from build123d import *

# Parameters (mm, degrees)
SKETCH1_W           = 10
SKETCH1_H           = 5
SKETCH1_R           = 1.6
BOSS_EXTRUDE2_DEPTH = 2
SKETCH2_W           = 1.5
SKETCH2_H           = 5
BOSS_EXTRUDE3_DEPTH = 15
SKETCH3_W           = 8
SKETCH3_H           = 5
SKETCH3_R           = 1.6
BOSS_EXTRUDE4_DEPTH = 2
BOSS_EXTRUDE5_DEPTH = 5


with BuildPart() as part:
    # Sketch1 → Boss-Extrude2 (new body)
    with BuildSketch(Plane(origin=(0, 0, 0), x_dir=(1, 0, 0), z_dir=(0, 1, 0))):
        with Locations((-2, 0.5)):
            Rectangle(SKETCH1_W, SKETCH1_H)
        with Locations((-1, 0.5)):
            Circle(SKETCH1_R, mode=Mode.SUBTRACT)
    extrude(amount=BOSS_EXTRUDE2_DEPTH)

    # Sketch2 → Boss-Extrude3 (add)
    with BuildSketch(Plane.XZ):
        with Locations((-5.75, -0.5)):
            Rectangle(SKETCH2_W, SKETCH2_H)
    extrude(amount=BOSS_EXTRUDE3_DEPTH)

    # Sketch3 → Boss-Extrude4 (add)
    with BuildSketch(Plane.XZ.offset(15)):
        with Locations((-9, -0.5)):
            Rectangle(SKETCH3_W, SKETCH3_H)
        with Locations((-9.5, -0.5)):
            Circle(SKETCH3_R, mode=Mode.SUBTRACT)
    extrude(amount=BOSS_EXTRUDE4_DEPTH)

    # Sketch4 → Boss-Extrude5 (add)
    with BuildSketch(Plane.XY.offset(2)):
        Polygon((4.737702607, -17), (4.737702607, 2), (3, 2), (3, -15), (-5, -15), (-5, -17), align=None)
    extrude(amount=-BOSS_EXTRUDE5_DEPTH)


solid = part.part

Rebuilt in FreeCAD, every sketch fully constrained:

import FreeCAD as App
import Part
import Sketcher

doc = App.newDocument("Part")
body = doc.addObject("PartDesign::Body", "Body")

sketch1 = doc.addObject("Sketcher::SketchObject", "Sketch")
body.addObject(sketch1)
sketch1.AttachmentSupport = (doc.XZ_Plane, [""])
sketch1.MapMode = "FlatFace"
sketch1.addGeometry([
    Part.LineSegment(App.Vector(-7, -3, 0), App.Vector(-7, 2, 0)),
    Part.LineSegment(App.Vector(-7, 2, 0), App.Vector(3, 2, 0)),
    Part.LineSegment(App.Vector(3, 2, 0), App.Vector(3, -3, 0)),
    Part.LineSegment(App.Vector(3, -3, 0), App.Vector(-7, -3, 0)),
    Part.Circle(App.Vector(-1, -0.5, 0), App.Vector(0, 0, 1), 1.6),
], False)
sketch1.addConstraint([
    Sketcher.Constraint("Coincident", 0, 2, 1, 1),
    Sketcher.Constraint("Coincident", 1, 2, 2, 1),
    Sketcher.Constraint("Coincident", 2, 2, 3, 1),
    Sketcher.Constraint("Coincident", 3, 2, 0, 1),
    Sketcher.Constraint("Vertical", 0),
    Sketcher.Constraint("Horizontal", 1),
    Sketcher.Constraint("Vertical", 2),
    Sketcher.Constraint("Horizontal", 3),
    Sketcher.Constraint("Diameter", 4, 3.2),
    Sketcher.Constraint("DistanceX", 1, 1, 1, 2, 10.0),
    Sketcher.Constraint("DistanceY", 0, 1, 0, 2, 5.0),
    Sketcher.Constraint("DistanceX", 4, 3, -1, 1, 1.0),
    Sketcher.Constraint("DistanceX", 0, 2, -1, 1, 7.0),
    Sketcher.Constraint("DistanceY", -1, 1, 0, 2, 2.0),
    Sketcher.Constraint("DistanceY", 4, 3, -1, 1, 0.5),
])
pad1 = doc.addObject("PartDesign::Pad", "Pad")
body.addObject(pad1)
pad1.Profile = sketch1
pad1.Length = 2
pad1.Reversed = True

sketch2 = doc.addObject("Sketcher::SketchObject", "Sketch001")
body.addObject(sketch2)
sketch2.AttachmentSupport = (doc.XZ_Plane, [""])
sketch2.MapMode = "FlatFace"
sketch2.addGeometry([
    Part.LineSegment(App.Vector(-6.5, 2, 0), App.Vector(-6.5, -3, 0)),
    Part.LineSegment(App.Vector(-6.5, -3, 0), App.Vector(-5, -3, 0)),
    Part.LineSegment(App.Vector(-5, -3, 0), App.Vector(-5, 2, 0)),
    Part.LineSegment(App.Vector(-5, 2, 0), App.Vector(-6.5, 2, 0)),
], False)
sketch2.addConstraint([
    Sketcher.Constraint("Coincident", 0, 2, 1, 1),
    Sketcher.Constraint("Coincident", 1, 2, 2, 1),
    Sketcher.Constraint("Coincident", 2, 2, 3, 1),
    Sketcher.Constraint("Coincident", 3, 2, 0, 1),
    Sketcher.Constraint("Vertical", 0),
    Sketcher.Constraint("Horizontal", 1),
    Sketcher.Constraint("Vertical", 2),
    Sketcher.Constraint("Horizontal", 3),
    Sketcher.Constraint("DistanceY", 0, 2, 0, 1, 5.0),
    Sketcher.Constraint("DistanceX", 1, 1, 1, 2, 1.5),
    Sketcher.Constraint("DistanceY", 0, 2, -1, 1, 3.0),
    Sketcher.Constraint("DistanceX", 1, 2, -1, 1, 5.0),
])
pad2 = doc.addObject("PartDesign::Pad", "Pad001")
body.addObject(pad2)
pad2.Profile = sketch2
pad2.Length = 15

sketch3 = doc.addObject("Sketcher::SketchObject", "Sketch002")
body.addObject(sketch3)
sketch3.AttachmentSupport = (doc.XZ_Plane, [""])
sketch3.MapMode = "FlatFace"
sketch3.AttachmentOffset = App.Placement(App.Vector(0, 0, 15), App.Rotation())
sketch3.addGeometry([
    Part.LineSegment(App.Vector(-13, 2, 0), App.Vector(-13, -3, 0)),
    Part.LineSegment(App.Vector(-13, -3, 0), App.Vector(-5, -3, 0)),
    Part.LineSegment(App.Vector(-5, -3, 0), App.Vector(-5, 2, 0)),
    Part.LineSegment(App.Vector(-5, 2, 0), App.Vector(-13, 2, 0)),
    Part.Circle(App.Vector(-9.5, -0.5, 0), App.Vector(0, 0, 1), 1.6),
], False)
sketch3.addConstraint([
    Sketcher.Constraint("Coincident", 0, 2, 1, 1),
    Sketcher.Constraint("Coincident", 1, 2, 2, 1),
    Sketcher.Constraint("Coincident", 2, 2, 3, 1),
    Sketcher.Constraint("Coincident", 3, 2, 0, 1),
    Sketcher.Constraint("Vertical", 0),
    Sketcher.Constraint("Horizontal", 1),
    Sketcher.Constraint("Vertical", 2),
    Sketcher.Constraint("Horizontal", 3),
    Sketcher.Constraint("Diameter", 4, 3.2),
    Sketcher.Constraint("DistanceX", 1, 1, 1, 2, 8.0),
    Sketcher.Constraint("DistanceY", 0, 2, 0, 1, 5.0),
    Sketcher.Constraint("DistanceX", 0, 2, -1, 1, 13.0),
    Sketcher.Constraint("DistanceY", 0, 2, -1, 1, 3.0),
    Sketcher.Constraint("DistanceX", 4, 3, -1, 1, 9.5),
    Sketcher.Constraint("DistanceY", 4, 3, -1, 1, 0.5),
])
pad3 = doc.addObject("PartDesign::Pad", "Pad002")
body.addObject(pad3)
pad3.Profile = sketch3
pad3.Length = 2

sketch4 = doc.addObject("Sketcher::SketchObject", "Sketch003")
body.addObject(sketch4)
sketch4.AttachmentSupport = (doc.XY_Plane, [""])
sketch4.MapMode = "FlatFace"
sketch4.AttachmentOffset = App.Placement(App.Vector(0, 0, 2), App.Rotation())
sketch4.addGeometry([
    Part.LineSegment(App.Vector(4.7, -17, 0), App.Vector(4.7, 2, 0)),
    Part.LineSegment(App.Vector(4.7, 2, 0), App.Vector(3, 2, 0)),
    Part.LineSegment(App.Vector(3, 2, 0), App.Vector(3, -15, 0)),
    Part.LineSegment(App.Vector(3, -15, 0), App.Vector(-5, -15, 0)),
    Part.LineSegment(App.Vector(-5, -15, 0), App.Vector(-5, -17, 0)),
    Part.LineSegment(App.Vector(-5, -17, 0), App.Vector(4.7, -17, 0)),
], False)
sketch4.addConstraint([
    Sketcher.Constraint("Coincident", 0, 2, 1, 1),
    Sketcher.Constraint("Coincident", 1, 2, 2, 1),
    Sketcher.Constraint("Coincident", 2, 2, 3, 1),
    Sketcher.Constraint("Coincident", 3, 2, 4, 1),
    Sketcher.Constraint("Coincident", 4, 2, 5, 1),
    Sketcher.Constraint("Coincident", 5, 2, 0, 1),
    Sketcher.Constraint("Vertical", 0),
    Sketcher.Constraint("Horizontal", 1),
    Sketcher.Constraint("Vertical", 2),
    Sketcher.Constraint("Horizontal", 3),
    Sketcher.Constraint("Vertical", 4),
    Sketcher.Constraint("Horizontal", 5),
    Sketcher.Constraint("DistanceX", 3, 2, 3, 1, 8.0),
    Sketcher.Constraint("DistanceY", 0, 1, 0, 2, 19.0),
    Sketcher.Constraint("DistanceY", 2, 2, 2, 1, 17.0),
    Sketcher.Constraint("DistanceY", -1, 1, 0, 2, 2.0),
    Sketcher.Constraint("DistanceX", -1, 1, 1, 2, 3.0),
    Sketcher.Constraint("DistanceX", 1, 2, 1, 1, 1.737703),
])
pad4 = doc.addObject("PartDesign::Pad", "Pad003")
body.addObject(pad4)
pad4.Profile = sketch4
pad4.Length = 5
pad4.Reversed = True

doc.recompute()
